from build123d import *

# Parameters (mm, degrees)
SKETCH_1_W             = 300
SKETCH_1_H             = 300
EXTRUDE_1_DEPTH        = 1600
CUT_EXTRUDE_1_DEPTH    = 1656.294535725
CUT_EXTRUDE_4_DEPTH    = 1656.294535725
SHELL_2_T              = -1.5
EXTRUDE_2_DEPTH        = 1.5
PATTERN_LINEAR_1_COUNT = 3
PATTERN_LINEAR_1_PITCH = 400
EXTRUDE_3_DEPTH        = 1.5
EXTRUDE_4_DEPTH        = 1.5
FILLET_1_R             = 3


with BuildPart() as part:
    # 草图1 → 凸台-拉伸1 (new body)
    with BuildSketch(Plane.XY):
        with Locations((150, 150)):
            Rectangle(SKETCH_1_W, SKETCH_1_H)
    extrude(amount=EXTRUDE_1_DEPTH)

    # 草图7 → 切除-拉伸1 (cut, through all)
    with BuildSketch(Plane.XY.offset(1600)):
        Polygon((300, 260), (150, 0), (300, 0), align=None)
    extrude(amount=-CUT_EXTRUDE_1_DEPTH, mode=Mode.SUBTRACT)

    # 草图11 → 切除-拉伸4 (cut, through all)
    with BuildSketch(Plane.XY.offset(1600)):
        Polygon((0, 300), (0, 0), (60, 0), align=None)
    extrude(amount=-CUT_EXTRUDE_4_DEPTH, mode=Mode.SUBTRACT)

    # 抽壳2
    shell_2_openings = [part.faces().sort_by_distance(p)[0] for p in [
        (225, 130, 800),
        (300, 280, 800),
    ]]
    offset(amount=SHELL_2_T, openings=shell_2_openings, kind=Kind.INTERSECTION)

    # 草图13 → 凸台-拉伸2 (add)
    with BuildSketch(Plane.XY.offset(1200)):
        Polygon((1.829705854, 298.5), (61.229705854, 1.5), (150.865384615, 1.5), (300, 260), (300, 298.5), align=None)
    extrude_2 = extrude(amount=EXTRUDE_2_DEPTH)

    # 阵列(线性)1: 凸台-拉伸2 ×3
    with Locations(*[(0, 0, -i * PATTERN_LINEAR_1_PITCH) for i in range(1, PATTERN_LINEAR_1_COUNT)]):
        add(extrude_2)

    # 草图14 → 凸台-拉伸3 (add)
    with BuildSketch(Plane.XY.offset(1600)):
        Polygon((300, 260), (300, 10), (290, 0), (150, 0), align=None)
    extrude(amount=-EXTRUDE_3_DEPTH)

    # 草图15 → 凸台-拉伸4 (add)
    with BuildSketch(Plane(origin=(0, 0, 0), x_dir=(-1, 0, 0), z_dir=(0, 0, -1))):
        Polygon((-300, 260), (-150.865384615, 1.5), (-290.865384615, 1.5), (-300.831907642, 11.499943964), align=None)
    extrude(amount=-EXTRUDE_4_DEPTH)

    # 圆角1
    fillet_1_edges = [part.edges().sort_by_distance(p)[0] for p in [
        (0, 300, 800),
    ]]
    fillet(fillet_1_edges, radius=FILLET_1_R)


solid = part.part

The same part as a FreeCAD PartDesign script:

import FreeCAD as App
import Part
import Sketcher
Q = App.Units.Quantity


def edges_at(feature, points):
    """Names of the edges that pass closest to the given points."""
    edges = feature.Shape.Edges
    near = lambda p: min(range(len(edges)), key=lambda i: edges[i].distToShape(Part.Vertex(*p))[0])
    return sorted({f"Edge{near(p) + 1}" for p in points})


def faces_at(feature, points):
    """Names of the faces that lie closest to the given points."""
    faces = feature.Shape.Faces
    near = lambda p: min(range(len(faces)), key=lambda i: faces[i].distToShape(Part.Vertex(*p))[0])
    return sorted({f"Face{near(p) + 1}" for p in points})


def add_polygon(sketch, points):
    """Adds a closed chain of lines whose ends are joined by coincident constraints."""
    first, n = sketch.GeometryCount, len(points)
    for a, b in zip(points, points[1:] + points[:1]):
        sketch.addGeometry(Part.LineSegment(App.Vector(*a, 0), App.Vector(*b, 0)), False)
    for i in range(n):
        sketch.addConstraint(Sketcher.Constraint("Coincident", first + i, 2, first + (i + 1) % n, 1))

doc = App.newDocument("Part")
body = doc.addObject("PartDesign::Body", "Body")

# Sketch on XY plane
sketch1 = doc.addObject("Sketcher::SketchObject", "Sketch")
body.addObject(sketch1)
sketch1.AttachmentSupport = (doc.XY_Plane, [""])
sketch1.MapMode = "FlatFace"
add_polygon(sketch1, [(0, 300), (0, 0), (300, 0), (300, 300)])  # lines 0-3
sketch1.addConstraint(Sketcher.Constraint("Vertical", 0))
sketch1.addConstraint(Sketcher.Constraint("Horizontal", 1))
sketch1.addConstraint(Sketcher.Constraint("Vertical", 2))
sketch1.addConstraint(Sketcher.Constraint("Horizontal", 3))
sketch1.addConstraint(Sketcher.Constraint("Coincident", 0, 2, -1, 1))
sketch1.addConstraint(Sketcher.Constraint("Equal", 3, 0))
sketch1.addConstraint(Sketcher.Constraint("DistanceX", 1, 1, 1, 2, Q("300 mm")))
pad1 = doc.addObject("PartDesign::Pad", "Pad")
body.addObject(pad1)
pad1.Profile = sketch1
pad1.Length = 1600

# Sketch on XY plane
sketch2 = doc.addObject("Sketcher::SketchObject", "Sketch001")
body.addObject(sketch2)
sketch2.AttachmentSupport = (doc.XY_Plane, [""])
sketch2.MapMode = "FlatFace"
sketch2.AttachmentOffset = App.Placement(App.Vector(0, 0, 1600), App.Rotation())
add_polygon(sketch2, [(300, 260), (150, 0), (300, 0)])  # lines 0-2
sketch2.addConstraint(Sketcher.Constraint("Horizontal", 1))
sketch2.addConstraint(Sketcher.Constraint("Vertical", 2))
sketch2.addConstraint(Sketcher.Constraint("PointOnObject", 0, 2, -1))
sketch2.addConstraint(Sketcher.Constraint("DistanceX", 1, 1, 1, 2, Q("150 mm")))
sketch2.addConstraint(Sketcher.Constraint("DistanceY", 2, 1, 2, 2, Q("260 mm")))
sketch2.addConstraint(Sketcher.Constraint("DistanceX", -1, 1, 0, 2, Q("150 mm")))
pocket1 = doc.addObject("PartDesign::Pocket", "Pocket")
body.addObject(pocket1)
pocket1.Profile = sketch2
pocket1.Type = "ThroughAll"

# Sketch on XY plane
sketch3 = doc.addObject("Sketcher::SketchObject", "Sketch002")
body.addObject(sketch3)
sketch3.AttachmentSupport = (doc.XY_Plane, [""])
sketch3.MapMode = "FlatFace"
sketch3.AttachmentOffset = App.Placement(App.Vector(0, 0, 1600), App.Rotation())
add_polygon(sketch3, [(0, 300), (0, 0), (60, 0)])  # lines 0-2
sketch3.addConstraint(Sketcher.Constraint("Vertical", 0))
sketch3.addConstraint(Sketcher.Constraint("Horizontal", 1))
sketch3.addConstraint(Sketcher.Constraint("Coincident", 0, 2, -1, 1))
sketch3.addConstraint(Sketcher.Constraint("DistanceX", 1, 1, 1, 2, Q("60 mm")))
sketch3.addConstraint(Sketcher.Constraint("DistanceY", 0, 2, 0, 1, Q("300 mm")))
pocket2 = doc.addObject("PartDesign::Pocket", "Pocket001")
body.addObject(pocket2)
pocket2.Profile = sketch3
pocket2.Type = "ThroughAll"
doc.recompute()

thickness = doc.addObject("PartDesign::Thickness", "Thickness")
body.addObject(thickness)
thickness.Base = (pocket2, faces_at(pocket2, [(225, 130, 800), (300, 280, 800)]))
thickness.Value = 1.5
thickness.Reversed = True
thickness.Join = "Intersection"

# Sketch on XY plane
sketch4 = doc.addObject("Sketcher::SketchObject", "Sketch003")
body.addObject(sketch4)
sketch4.AttachmentSupport = (doc.XY_Plane, [""])
sketch4.MapMode = "FlatFace"
sketch4.AttachmentOffset = App.Placement(App.Vector(0, 0, 1200), App.Rotation())
add_polygon(sketch4, [(2, 298), (61, 2), (151, 2), (300, 260), (300, 298)])  # lines 0-4
sketch4.addConstraint(Sketcher.Constraint("Horizontal", 1))
sketch4.addConstraint(Sketcher.Constraint("Vertical", 3))
sketch4.addConstraint(Sketcher.Constraint("Horizontal", 4))
sketch4.addConstraint(Sketcher.Constraint("DistanceY", 3, 1, 3, 2, Q("38.5 mm")))
sketch4.addConstraint(Sketcher.Constraint("DistanceX", -1, 1, 2, 2, Q("300 mm")))
sketch4.addConstraint(Sketcher.Constraint("DistanceY", -1, 1, 2, 2, Q("260 mm")))
sketch4.addConstraint(Sketcher.Constraint("DistanceY", 1, 2, 3, 2, Q("297 mm")))
sketch4.addConstraint(Sketcher.Constraint("DistanceX", 4, 2, 0, 2, Q("59.4 mm")))
sketch4.addConstraint(Sketcher.Constraint("DistanceX", 1, 1, 1, 2, Q("89.635679 mm")))
sketch4.addConstraint(Sketcher.Constraint("Distance", 2, Q("298.43489 mm")))
pad2 = doc.addObject("PartDesign::Pad", "Pad001")
body.addObject(pad2)
pad2.Profile = sketch4
pad2.Length = 1.5
doc.recompute()

linearpattern = doc.addObject("PartDesign::LinearPattern", "LinearPattern")
body.addObject(linearpattern)
linearpattern.Originals = [pad2]
linearpattern.Direction = (doc.Z_Axis, [""])
linearpattern.Mode = "offset"
linearpattern.Offset = 400
linearpattern.Occurrences = 3
linearpattern.Reversed = True
body.Tip = linearpattern

# Sketch on XY plane
sketch5 = doc.addObject("Sketcher::SketchObject", "Sketch004")
body.addObject(sketch5)
sketch5.AttachmentSupport = (doc.XY_Plane, [""])
sketch5.MapMode = "FlatFace"
sketch5.AttachmentOffset = App.Placement(App.Vector(0, 0, 1600), App.Rotation())
add_polygon(sketch5, [(300, 10), (300, 260), (150, 0), (290, 0)])  # lines 0-3
sketch5.addConstraint(Sketcher.Constraint("Vertical", 0))
sketch5.addConstraint(Sketcher.Constraint("Horizontal", 2))
sketch5.addConstraint(Sketcher.Constraint("PointOnObject", 1, 2, -1))
sketch5.addConstraint(Sketcher.Constraint("DistanceX", 2, 1, 2, 2, Q("140 mm")))
sketch5.addConstraint(Sketcher.Constraint("DistanceY", 0, 1, 0, 2, Q("250 mm")))
sketch5.addConstraint(Sketcher.Constraint("Angle", 3, Q("45 deg")))
sketch5.addConstraint(Sketcher.Constraint("DistanceX", -1, 1, 0, 2, Q("300 mm")))
sketch5.addConstraint(Sketcher.Constraint("DistanceY", -1, 1, 0, 2, Q("260 mm")))
pad3 = doc.addObject("PartDesign::Pad", "Pad002")
body.addObject(pad3)
pad3.Profile = sketch5
pad3.Length = 1.5
pad3.Reversed = True

# Sketch on XY plane
sketch6 = doc.addObject("Sketcher::SketchObject", "Sketch005")
body.addObject(sketch6)
sketch6.AttachmentSupport = (doc.XY_Plane, [""])
sketch6.MapMode = "FlatFace"
add_polygon(sketch6, [(151, 2), (300, 260), (301, 11), (291, 2)])  # lines 0-3
sketch6.addConstraint(Sketcher.Constraint("Horizontal", 3))
sketch6.addConstraint(Sketcher.Constraint("DistanceX", 3, 2, 3, 1, Q("140 mm")))
sketch6.addConstraint(Sketcher.Constraint("DistanceX", -1, 1, 0, 2, Q("300 mm")))
sketch6.addConstraint(Sketcher.Constraint("DistanceY", -1, 1, 0, 2, Q("260 mm")))
sketch6.addConstraint(Sketcher.Constraint("DistanceY", -1, 1, 2, 2, Q("1.5 mm")))
sketch6.addConstraint(Sketcher.Constraint("Distance", 0, Q("298.43489 mm")))
sketch6.addConstraint(Sketcher.Constraint("Distance", 1, Q("248.501449 mm")))
sketch6.addConstraint(Sketcher.Constraint("Distance", 2, Q("14.118444 mm")))
pad4 = doc.addObject("PartDesign::Pad", "Pad003")
body.addObject(pad4)
pad4.Profile = sketch6
pad4.Length = 1.5
doc.recompute()

fillet = doc.addObject("PartDesign::Fillet", "Fillet")
body.addObject(fillet)
fillet.Base = (pad4, edges_at(pad4, [(0, 300, 800)]))
fillet.Radius = 3

doc.recompute()
